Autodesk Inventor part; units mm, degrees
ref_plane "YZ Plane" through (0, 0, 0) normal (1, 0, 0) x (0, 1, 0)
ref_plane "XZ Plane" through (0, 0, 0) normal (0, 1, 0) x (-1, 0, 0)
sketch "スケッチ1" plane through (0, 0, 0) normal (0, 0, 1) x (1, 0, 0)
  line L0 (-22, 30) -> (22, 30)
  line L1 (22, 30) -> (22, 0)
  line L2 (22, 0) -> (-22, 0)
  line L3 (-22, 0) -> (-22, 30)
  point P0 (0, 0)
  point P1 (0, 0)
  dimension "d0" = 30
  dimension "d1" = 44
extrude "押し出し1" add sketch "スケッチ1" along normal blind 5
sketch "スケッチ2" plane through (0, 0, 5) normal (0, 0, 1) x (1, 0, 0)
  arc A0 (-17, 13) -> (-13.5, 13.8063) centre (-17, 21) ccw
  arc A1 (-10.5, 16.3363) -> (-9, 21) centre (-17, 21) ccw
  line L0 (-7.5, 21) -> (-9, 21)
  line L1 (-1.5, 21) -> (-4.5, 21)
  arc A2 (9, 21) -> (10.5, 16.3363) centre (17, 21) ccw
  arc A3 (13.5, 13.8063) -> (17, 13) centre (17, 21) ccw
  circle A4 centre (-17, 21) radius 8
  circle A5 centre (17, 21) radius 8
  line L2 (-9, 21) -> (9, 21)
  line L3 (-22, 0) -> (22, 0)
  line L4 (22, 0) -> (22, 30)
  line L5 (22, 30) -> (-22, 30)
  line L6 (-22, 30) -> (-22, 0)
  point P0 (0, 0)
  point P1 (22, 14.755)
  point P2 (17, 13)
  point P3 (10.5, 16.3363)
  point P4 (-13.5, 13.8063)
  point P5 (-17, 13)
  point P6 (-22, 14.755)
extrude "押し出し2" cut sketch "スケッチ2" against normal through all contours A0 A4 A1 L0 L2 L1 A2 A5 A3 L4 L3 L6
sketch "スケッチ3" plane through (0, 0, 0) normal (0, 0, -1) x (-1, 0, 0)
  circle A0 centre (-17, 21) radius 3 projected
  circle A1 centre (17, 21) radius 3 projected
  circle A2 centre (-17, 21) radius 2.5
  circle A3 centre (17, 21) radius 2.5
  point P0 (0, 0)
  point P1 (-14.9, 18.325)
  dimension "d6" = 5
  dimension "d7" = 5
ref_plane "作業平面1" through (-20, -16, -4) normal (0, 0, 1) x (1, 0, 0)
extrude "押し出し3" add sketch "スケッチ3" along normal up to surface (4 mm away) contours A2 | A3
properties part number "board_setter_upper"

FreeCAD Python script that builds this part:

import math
import FreeCAD as App
import Part
import Sketcher
from FreeCAD import Vector


def add_polygon(sketch, points):
    """Adds a closed chain of lines whose ends are joined by coincident constraints."""
    first, n = sketch.GeometryCount, len(points)
    for a, b in zip(points, points[1:] + points[:1]):
        sketch.addGeometry(Part.LineSegment(App.Vector(*a, 0), App.Vector(*b, 0)), False)
    for i in range(n):
        sketch.addConstraint(Sketcher.Constraint("Coincident", first + i, 2, first + (i + 1) % n, 1))

doc = App.newDocument("Part")
body = doc.addObject("PartDesign::Body", "Body")

# Sketch on XY plane
sketch1 = body.newObject("Sketcher::SketchObject", "Sketch")
sketch1.AttachmentSupport = (doc.getObject("XY_Plane"), [""])
sketch1.MapMode = "FlatFace"
add_polygon(sketch1, [(22, 30), (-22, 30), (-22, 0), (22, 0)])  # lines 0-3
sketch1.addConstraint(Sketcher.Constraint("Horizontal", 0))
sketch1.addConstraint(Sketcher.Constraint("Vertical", 1))
sketch1.addConstraint(Sketcher.Constraint("Horizontal", 2))
sketch1.addConstraint(Sketcher.Constraint("Vertical", 3))
sketch1.addConstraint(Sketcher.Constraint("Symmetric", 1, 2, 2, 2, -1, 1))
sketch1.addConstraint(Sketcher.Constraint("DistanceX", 0, 2, 0, 1, 44.0))
sketch1.addConstraint(Sketcher.Constraint("DistanceY", 1, 2, 1, 1, 30.0))
pad1 = body.newObject("PartDesign::Pad", "Pad")
pad1.Profile = sketch1
pad1.Length = 5

# Sketch on XY plane
sketch2 = body.newObject("Sketcher::SketchObject", "Sketch001")
sketch2.AttachmentSupport = (doc.getObject("XY_Plane"), [""])
sketch2.MapMode = "FlatFace"
sketch2.AttachmentOffset = App.Placement(Vector(0, 0, 5), App.Rotation())
sketch2.addGeometry(Part.ArcOfCircle(Part.Circle(Vector(-17, 21, 0), Vector(0, 0, 1), 8), math.radians(-90), math.radians(-64)), False)
sketch2.addGeometry(Part.ArcOfCircle(Part.Circle(Vector(-17, 21, 0), Vector(0, 0, 1), 8), math.radians(-129), math.radians(-90)), False)
sketch2.addGeometry(Part.LineSegment(Vector(-22, 14.8, 0), Vector(-22, 0, 0)), False)
sketch2.addGeometry(Part.LineSegment(Vector(-22, 0, 0), Vector(22, 0, 0)), False)
sketch2.addGeometry(Part.LineSegment(Vector(22, 0, 0), Vector(22, 14.8, 0)), False)
sketch2.addGeometry(Part.ArcOfCircle(Part.Circle(Vector(17, 21, 0), Vector(0, 0, 1), 8), math.radians(-90), math.radians(-51)), False)
sketch2.addGeometry(Part.ArcOfCircle(Part.Circle(Vector(17, 21, 0), Vector(0, 0, 1), 8), math.radians(-116), math.radians(-90)), False)
sketch2.addGeometry(Part.ArcOfCircle(Part.Circle(Vector(17, 21, 0), Vector(0, 0, 1), 8), math.radians(-144), math.radians(-116)), False)
sketch2.addGeometry(Part.ArcOfCircle(Part.Circle(Vector(17, 21, 0), Vector(0, 0, 1), 8), math.radians(180), math.radians(216)), False)
sketch2.addGeometry(Part.LineSegment(Vector(9, 21, 0), Vector(-9, 21, 0)), False)
sketch2.addGeometry(Part.ArcOfCircle(Part.Circle(Vector(-17, 21, 0), Vector(0, 0, 1), 8), math.radians(-36), math.radians(0)), False)
sketch2.addGeometry(Part.ArcOfCircle(Part.Circle(Vector(-17, 21, 0), Vector(0, 0, 1), 8), math.radians(-64), math.radians(-36)), False)
sketch2.addConstraint(Sketcher.Constraint("Tangent", 0, 1, 1, 2))
sketch2.addConstraint(Sketcher.Constraint("Coincident", 1, 1, 2, 1))
sketch2.addConstraint(Sketcher.Constraint("Coincident", 2, 2, 3, 1))
sketch2.addConstraint(Sketcher.Constraint("Coincident", 3, 2, 4, 1))
sketch2.addConstraint(Sketcher.Constraint("Coincident", 4, 2, 5, 2))
sketch2.addConstraint(Sketcher.Constraint("Tangent", 5, 1, 6, 2))
sketch2.addConstraint(Sketcher.Constraint("Tangent", 6, 1, 7, 2))
sketch2.addConstraint(Sketcher.Constraint("Tangent", 7, 1, 8, 2))
sketch2.addConstraint(Sketcher.Constraint("Coincident", 8, 1, 9, 1))
sketch2.addConstraint(Sketcher.Constraint("Coincident", 9, 2, 10, 2))
sketch2.addConstraint(Sketcher.Constraint("Tangent", 10, 1, 11, 2))
sketch2.addConstraint(Sketcher.Constraint("Tangent", 11, 1, 0, 2))
sketch2.addConstraint(Sketcher.Constraint("Vertical", 2))
sketch2.addConstraint(Sketcher.Constraint("Horizontal", 3))
sketch2.addConstraint(Sketcher.Constraint("Vertical", 4))
sketch2.addConstraint(Sketcher.Constraint("Horizontal", 9))
sketch2.addConstraint(Sketcher.Constraint("Coincident", 7, 3, 5, 3))
sketch2.addConstraint(Sketcher.Constraint("Coincident", 10, 3, 0, 3))
sketch2.addConstraint(Sketcher.Constraint("Equal", 0, 1))
sketch2.addConstraint(Sketcher.Constraint("Equal", 1, 5))
sketch2.addConstraint(Sketcher.Constraint("Equal", 7, 8))
sketch2.addConstraint(Sketcher.Constraint("Symmetric", 2, 2, 3, 2, -1, 1))
sketch2.addConstraint(Sketcher.Constraint("Symmetric", 0, 3, 5, 3, -2))
sketch2.addConstraint(Sketcher.Constraint("Horizontal", 11, 3, 8, 1))
sketch2.addConstraint(Sketcher.Constraint("Horizontal", 7, 1, 10, 1))
sketch2.addConstraint(Sketcher.Constraint("Horizontal", 6, 1, 11, 1))
sketch2.addConstraint(Sketcher.Constraint("Vertical", 11, 3, 0, 1))
sketch2.addConstraint(Sketcher.Constraint("Vertical", 8, 3, 5, 1))
sketch2.addConstraint(Sketcher.Constraint("Radius", 0, 8.0))
sketch2.addConstraint(Sketcher.Constraint("DistanceX", 3, 1, 3, 2, 44.0))
sketch2.addConstraint(Sketcher.Constraint("DistanceX", 9, 2, 9, 1, 18.0))
sketch2.addConstraint(Sketcher.Constraint("DistanceY", -1, 1, 0, 3, 21.0))
sketch2.addConstraint(Sketcher.Constraint("DistanceX", 7, 1, 6, 1, 3.0))
sketch2.addConstraint(Sketcher.Constraint("DistanceX", -1, 1, 6, 1, 13.5))
pocket1 = body.newObject("PartDesign::Pocket", "Pocket")
pocket1.Profile = sketch2
pocket1.Type = "ThroughAll"

# Sketch on XY plane
sketch3 = body.newObject("Sketcher::SketchObject", "Sketch002")
sketch3.AttachmentSupport = (doc.getObject("XY_Plane"), [""])
sketch3.MapMode = "FlatFace"
sketch3.addGeometry(Part.Circle(Vector(17, 21, 0), Vector(0, 0, 1), 2.5), False)
sketch3.addGeometry(Part.Circle(Vector(-17, 21, 0), Vector(0, 0, 1), 2.5), False)
sketch3.addConstraint(Sketcher.Constraint("Equal", 0, 1))
sketch3.addConstraint(Sketcher.Constraint("Symmetric", 0, 3, 1, 3, -2))
sketch3.addConstraint(Sketcher.Constraint("Diameter", 0, 5.0))
sketch3.addConstraint(Sketcher.Constraint("DistanceX", -1, 1, 0, 3, 17.0))
sketch3.addConstraint(Sketcher.Constraint("DistanceY", -1, 1, 0, 3, 21.0))
pad2 = body.newObject("PartDesign::Pad", "Pad001")
pad2.Profile = sketch3
pad2.Length = 4
pad2.Reversed = True

doc.recompute()
